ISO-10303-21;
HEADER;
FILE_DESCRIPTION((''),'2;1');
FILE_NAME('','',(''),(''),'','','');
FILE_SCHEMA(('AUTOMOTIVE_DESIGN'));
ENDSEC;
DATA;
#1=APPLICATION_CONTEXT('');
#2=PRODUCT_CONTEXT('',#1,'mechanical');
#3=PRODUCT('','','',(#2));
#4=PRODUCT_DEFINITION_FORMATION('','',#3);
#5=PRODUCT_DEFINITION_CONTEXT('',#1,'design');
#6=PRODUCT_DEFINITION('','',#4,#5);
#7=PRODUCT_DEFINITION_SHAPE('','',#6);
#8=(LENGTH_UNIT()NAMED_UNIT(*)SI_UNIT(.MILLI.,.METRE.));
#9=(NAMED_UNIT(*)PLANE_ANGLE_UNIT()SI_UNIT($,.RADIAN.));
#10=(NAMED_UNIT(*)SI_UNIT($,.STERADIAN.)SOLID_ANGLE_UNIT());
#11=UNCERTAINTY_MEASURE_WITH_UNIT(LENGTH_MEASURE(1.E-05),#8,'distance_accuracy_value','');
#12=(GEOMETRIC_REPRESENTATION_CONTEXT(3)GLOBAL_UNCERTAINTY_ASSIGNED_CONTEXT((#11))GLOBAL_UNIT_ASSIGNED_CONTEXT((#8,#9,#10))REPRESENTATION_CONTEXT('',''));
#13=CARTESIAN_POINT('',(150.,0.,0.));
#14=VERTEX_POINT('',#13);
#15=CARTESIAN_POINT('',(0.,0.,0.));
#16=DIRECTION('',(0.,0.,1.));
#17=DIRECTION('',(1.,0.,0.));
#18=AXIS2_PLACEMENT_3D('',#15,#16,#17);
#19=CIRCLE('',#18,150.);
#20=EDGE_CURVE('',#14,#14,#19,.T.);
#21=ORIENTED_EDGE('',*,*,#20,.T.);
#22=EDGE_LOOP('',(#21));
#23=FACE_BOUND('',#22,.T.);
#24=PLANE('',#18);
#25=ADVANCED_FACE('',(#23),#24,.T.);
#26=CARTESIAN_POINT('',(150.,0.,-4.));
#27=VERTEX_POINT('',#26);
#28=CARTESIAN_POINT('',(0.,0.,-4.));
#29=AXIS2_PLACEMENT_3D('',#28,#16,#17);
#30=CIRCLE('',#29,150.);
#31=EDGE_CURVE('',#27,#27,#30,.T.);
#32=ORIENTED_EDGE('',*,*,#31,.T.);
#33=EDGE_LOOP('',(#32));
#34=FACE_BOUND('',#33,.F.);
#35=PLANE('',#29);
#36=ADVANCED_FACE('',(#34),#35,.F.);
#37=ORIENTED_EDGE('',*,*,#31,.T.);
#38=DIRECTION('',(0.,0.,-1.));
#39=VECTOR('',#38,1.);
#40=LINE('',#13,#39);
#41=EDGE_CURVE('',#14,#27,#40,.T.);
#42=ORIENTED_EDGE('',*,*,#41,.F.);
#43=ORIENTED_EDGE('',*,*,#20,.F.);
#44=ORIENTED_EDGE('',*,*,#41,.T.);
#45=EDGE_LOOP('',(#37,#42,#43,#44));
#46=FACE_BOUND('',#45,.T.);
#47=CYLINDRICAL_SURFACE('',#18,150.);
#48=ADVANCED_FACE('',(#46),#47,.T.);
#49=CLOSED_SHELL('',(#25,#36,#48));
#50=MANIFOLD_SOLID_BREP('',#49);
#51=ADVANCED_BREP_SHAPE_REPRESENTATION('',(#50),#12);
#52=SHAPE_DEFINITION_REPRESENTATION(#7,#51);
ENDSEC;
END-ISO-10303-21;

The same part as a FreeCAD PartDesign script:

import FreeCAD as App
import Part
import Sketcher
Q = App.Units.Quantity

doc = App.newDocument("Part")
body = doc.addObject("PartDesign::Body", "Body")

# Sketch on XY plane
sketch1 = body.newObject("Sketcher::SketchObject", "Sketch")
sketch1.AttachmentSupport = (doc.getObject("XY_Plane"), [""])
sketch1.MapMode = "FlatFace"
sketch1.addGeometry(Part.Circle(App.Vector(0, 0, 0), App.Vector(0, 0, 1), 150), False)
sketch1.addConstraint([
    Sketcher.Constraint("Coincident", 0, 3, -1, 1),
    Sketcher.Constraint("Diameter", 0, Q("300 mm")),
])
pad1 = body.newObject("PartDesign::Pad", "Pad")
pad1.Profile = sketch1
pad1.Length = 4
pad1.Reversed = True

doc.recompute()
